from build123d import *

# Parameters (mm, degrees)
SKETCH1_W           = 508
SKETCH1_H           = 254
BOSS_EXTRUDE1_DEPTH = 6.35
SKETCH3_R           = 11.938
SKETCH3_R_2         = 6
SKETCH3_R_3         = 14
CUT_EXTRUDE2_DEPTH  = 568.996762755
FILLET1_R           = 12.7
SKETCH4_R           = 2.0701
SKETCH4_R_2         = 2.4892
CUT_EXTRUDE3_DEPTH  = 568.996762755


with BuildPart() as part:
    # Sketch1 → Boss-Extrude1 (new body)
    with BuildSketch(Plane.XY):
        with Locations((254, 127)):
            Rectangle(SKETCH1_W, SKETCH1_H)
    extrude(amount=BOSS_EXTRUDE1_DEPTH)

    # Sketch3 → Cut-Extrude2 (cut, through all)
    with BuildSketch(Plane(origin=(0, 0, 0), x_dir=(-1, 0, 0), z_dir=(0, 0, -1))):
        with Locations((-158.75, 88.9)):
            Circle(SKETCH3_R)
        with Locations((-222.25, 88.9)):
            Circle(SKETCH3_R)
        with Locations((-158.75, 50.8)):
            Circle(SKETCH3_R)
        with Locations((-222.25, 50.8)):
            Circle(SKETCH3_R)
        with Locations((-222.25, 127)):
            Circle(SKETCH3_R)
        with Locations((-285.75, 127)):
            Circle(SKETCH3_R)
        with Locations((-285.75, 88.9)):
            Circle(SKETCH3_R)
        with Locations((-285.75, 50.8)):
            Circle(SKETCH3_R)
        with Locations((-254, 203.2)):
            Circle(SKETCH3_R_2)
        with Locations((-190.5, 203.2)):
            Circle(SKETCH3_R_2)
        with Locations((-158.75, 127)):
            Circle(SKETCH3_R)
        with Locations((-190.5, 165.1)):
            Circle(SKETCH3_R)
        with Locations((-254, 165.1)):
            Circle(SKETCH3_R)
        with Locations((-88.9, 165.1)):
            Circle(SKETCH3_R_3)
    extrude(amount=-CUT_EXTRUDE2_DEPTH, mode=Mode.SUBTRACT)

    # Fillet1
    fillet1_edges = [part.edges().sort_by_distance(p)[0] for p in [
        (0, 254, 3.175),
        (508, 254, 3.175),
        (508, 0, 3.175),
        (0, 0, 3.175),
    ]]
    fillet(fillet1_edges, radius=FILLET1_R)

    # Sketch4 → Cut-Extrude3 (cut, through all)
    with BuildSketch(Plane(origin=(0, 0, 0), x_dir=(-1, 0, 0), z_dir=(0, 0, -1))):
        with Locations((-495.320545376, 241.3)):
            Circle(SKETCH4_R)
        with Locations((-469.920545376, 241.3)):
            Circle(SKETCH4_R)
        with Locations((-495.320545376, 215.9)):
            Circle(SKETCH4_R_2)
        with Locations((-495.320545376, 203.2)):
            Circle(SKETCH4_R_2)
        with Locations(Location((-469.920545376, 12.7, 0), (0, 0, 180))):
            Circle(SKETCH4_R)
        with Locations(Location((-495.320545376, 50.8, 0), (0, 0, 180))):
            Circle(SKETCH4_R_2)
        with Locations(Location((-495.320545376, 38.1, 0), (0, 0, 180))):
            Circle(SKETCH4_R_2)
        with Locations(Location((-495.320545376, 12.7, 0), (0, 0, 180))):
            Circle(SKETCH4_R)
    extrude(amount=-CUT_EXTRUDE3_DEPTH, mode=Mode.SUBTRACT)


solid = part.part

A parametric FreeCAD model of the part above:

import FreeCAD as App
import Part
import Sketcher

V = App.Vector
Q = App.Units.Quantity


def edges_at(feature, points):
    """Names of the edges that pass closest to the given points."""
    edges = feature.Shape.Edges
    near = lambda p: min(range(len(edges)), key=lambda i: edges[i].distToShape(Part.Vertex(*p))[0])
    return sorted({f"Edge{near(p) + 1}" for p in points})


def add_polygon(sketch, points):
    """Adds a closed chain of lines whose ends are joined by coincident constraints."""
    first, n = sketch.GeometryCount, len(points)
    for a, b in zip(points, points[1:] + points[:1]):
        sketch.addGeometry(Part.LineSegment(App.Vector(*a, 0), App.Vector(*b, 0)), False)
    for i in range(n):
        sketch.addConstraint(Sketcher.Constraint("Coincident", first + i, 2, first + (i + 1) % n, 1))

doc = App.newDocument("Part")
body = doc.addObject("PartDesign::Body", "Body")

sketch1 = body.newObject("Sketcher::SketchObject", "Sketch")
sketch1.AttachmentSupport = (doc.getObject("XY_Plane"), [""])
sketch1.MapMode = "FlatFace"
add_polygon(sketch1, [(0, 254), (0, 0), (508, 0), (508, 254)])
sketch1.addConstraint(Sketcher.Constraint("Vertical", 0))
sketch1.addConstraint(Sketcher.Constraint("Horizontal", 1))
sketch1.addConstraint(Sketcher.Constraint("Vertical", 2))
sketch1.addConstraint(Sketcher.Constraint("Horizontal", 3))
sketch1.addConstraint(Sketcher.Constraint("Coincident", 0, 2, -1, 1))
sketch1.addConstraint(Sketcher.Constraint("DistanceX", 1, 1, 1, 2, Q("20 in")))
sketch1.addConstraint(Sketcher.Constraint("DistanceY", 0, 2, 0, 1, Q("10 in")))
pad1 = body.newObject("PartDesign::Pad", "Pad")
pad1.Profile = sketch1
pad1.Length = Q("0.25 in")

sketch2 = body.newObject("Sketcher::SketchObject", "Sketch001")
sketch2.AttachmentSupport = (doc.getObject("XY_Plane"), [""])
sketch2.MapMode = "FlatFace"
sketch2.addGeometry(Part.Circle(V(159, 89, 0), V(0, 0, 1), 12), False)
sketch2.addGeometry(Part.Circle(V(222, 89, 0), V(0, 0, 1), 12), False)
sketch2.addGeometry(Part.Circle(V(159, 51, 0), V(0, 0, 1), 12), False)
sketch2.addGeometry(Part.Circle(V(222, 51, 0), V(0, 0, 1), 12), False)
sketch2.addGeometry(Part.Circle(V(222, 127, 0), V(0, 0, 1), 12), False)
sketch2.addGeometry(Part.Circle(V(286, 127, 0), V(0, 0, 1), 12), False)
sketch2.addGeometry(Part.Circle(V(286, 89, 0), V(0, 0, 1), 12), False)
sketch2.addGeometry(Part.Circle(V(286, 51, 0), V(0, 0, 1), 12), False)
sketch2.addGeometry(Part.Circle(V(254, 203, 0), V(0, 0, 1), 6), False)
sketch2.addGeometry(Part.Circle(V(190, 203, 0), V(0, 0, 1), 6), False)
sketch2.addGeometry(Part.Circle(V(159, 127, 0), V(0, 0, 1), 12), False)
sketch2.addGeometry(Part.Circle(V(190, 165, 0), V(0, 0, 1), 12), False)
sketch2.addGeometry(Part.Circle(V(254, 165, 0), V(0, 0, 1), 12), False)
sketch2.addGeometry(Part.Circle(V(89, 165, 0), V(0, 0, 1), 14), False)
sketch2.addConstraint(Sketcher.Constraint("Equal", 0, 1))
sketch2.addConstraint(Sketcher.Constraint("Equal", 1, 2))
sketch2.addConstraint(Sketcher.Constraint("Equal", 2, 3))
sketch2.addConstraint(Sketcher.Constraint("Equal", 3, 4))
sketch2.addConstraint(Sketcher.Constraint("Equal", 4, 5))
sketch2.addConstraint(Sketcher.Constraint("Equal", 5, 6))
sketch2.addConstraint(Sketcher.Constraint("Equal", 6, 7))
sketch2.addConstraint(Sketcher.Constraint("Equal", 8, 9))
sketch2.addConstraint(Sketcher.Constraint("Equal", 7, 10))
sketch2.addConstraint(Sketcher.Constraint("Equal", 10, 11))
sketch2.addConstraint(Sketcher.Constraint("Equal", 11, 12))
sketch2.addConstraint(Sketcher.Constraint("Horizontal", 0, 3, 1, 3))
sketch2.addConstraint(Sketcher.Constraint("Horizontal", 2, 3, 3, 3))
sketch2.addConstraint(Sketcher.Constraint("Horizontal", 4, 3, 5, 3))
sketch2.addConstraint(Sketcher.Constraint("Horizontal", 1, 3, 6, 3))
sketch2.addConstraint(Sketcher.Constraint("Horizontal", 3, 3, 7, 3))
sketch2.addConstraint(Sketcher.Constraint("Horizontal", 8, 3, 9, 3))
sketch2.addConstraint(Sketcher.Constraint("Horizontal", 5, 3, 10, 3))
sketch2.addConstraint(Sketcher.Constraint("Horizontal", 11, 3, 12, 3))
sketch2.addConstraint(Sketcher.Constraint("Horizontal", 12, 3, 13, 3))
sketch2.addConstraint(Sketcher.Constraint("Vertical", 0, 3, 2, 3))
sketch2.addConstraint(Sketcher.Constraint("Vertical", 1, 3, 3, 3))
sketch2.addConstraint(Sketcher.Constraint("Vertical", 3, 3, 4, 3))
sketch2.addConstraint(Sketcher.Constraint("Vertical", 5, 3, 6, 3))
sketch2.addConstraint(Sketcher.Constraint("Vertical", 6, 3, 7, 3))
sketch2.addConstraint(Sketcher.Constraint("Vertical", 2, 3, 10, 3))
sketch2.addConstraint(Sketcher.Constraint("Vertical", 9, 3, 11, 3))
sketch2.addConstraint(Sketcher.Constraint("Vertical", 8, 3, 12, 3))
sketch2.addConstraint(Sketcher.Constraint("Diameter", 0, Q("0.94 in")))
sketch2.addConstraint(Sketcher.Constraint("DistanceY", -1, 1, 2, 3, Q("2 in")))
sketch2.addConstraint(Sketcher.Constraint("DistanceY", -1, 1, 4, 3, Q("5 in")))
sketch2.addConstraint(Sketcher.Constraint("DistanceX", -1, 1, 8, 3, Q("10 in")))
sketch2.addConstraint(Sketcher.Constraint("DistanceY", -1, 1, 8, 3, Q("8 in")))
sketch2.addConstraint(Sketcher.Constraint("DistanceX", 0, 3, 5, 3, Q("5 in")))
sketch2.addConstraint(Sketcher.Constraint("DistanceY", 0, 3, 11, 3, Q("3 in")))
sketch2.addConstraint(Sketcher.Constraint("DistanceX", 13, 3, 11, 3, Q("4 in")))
sketch2.addConstraint(Sketcher.Constraint("DistanceY", -1, 1, 0, 3, Q("3.5 in")))
sketch2.addConstraint(Sketcher.Constraint("DistanceX", -1, 1, 9, 3, Q("7.5 in")))
sketch2.addConstraint(Sketcher.Constraint("DistanceX", 0, 3, 1, 3, Q("2.5 in")))
sketch2.addConstraint(Sketcher.Constraint("Diameter", 8, 12.0))
sketch2.addConstraint(Sketcher.Constraint("Diameter", 13, 28.0))
sketch2.addConstraint(Sketcher.Constraint("DistanceX", -1, 1, 0, 3, Q("6.25 in")))
pocket1 = body.newObject("PartDesign::Pocket", "Pocket")
pocket1.Profile = sketch2
pocket1.Type = "ThroughAll"
pocket1.Reversed = True
doc.recompute()

fillet = body.newObject("PartDesign::Fillet", "Fillet")
fillet.Base = (pocket1, edges_at(pocket1, [
    (0, 254, 3.175),
    (508, 254, 3.175),
    (508, 0, 3.175),
    (0, 0, 3.175),
]))
fillet.Radius = Q("0.5 in")

sketch3 = body.newObject("Sketcher::SketchObject", "Sketch002")
sketch3.AttachmentSupport = (doc.getObject("XY_Plane"), [""])
sketch3.MapMode = "FlatFace"
sketch3.addGeometry(Part.Circle(V(495.3, 241.3, 0), V(0, 0, 1), 2.1), False)
sketch3.addGeometry(Part.Circle(V(469.9, 241.3, 0), V(0, 0, 1), 2.1), False)
sketch3.addGeometry(Part.Circle(V(495.3, 215.9, 0), V(0, 0, 1), 2.5), False)
sketch3.addGeometry(Part.Circle(V(495.3, 203.2, 0), V(0, 0, 1), 2.5), False)
sketch3.addGeometry(Part.Circle(V(469.9, 12.7, 0), V(0, 0, 1), 2.1), False)
sketch3.addGeometry(Part.Circle(V(495.3, 50.8, 0), V(0, 0, 1), 2.5), False)
sketch3.addGeometry(Part.Circle(V(495.3, 38.1, 0), V(0, 0, 1), 2.5), False)
sketch3.addGeometry(Part.Circle(V(495.3, 12.7, 0), V(0, 0, 1), 2.1), False)
sketch3.addConstraint(Sketcher.Constraint("Equal", 0, 1))
sketch3.addConstraint(Sketcher.Constraint("Equal", 2, 3))
sketch3.addConstraint(Sketcher.Constraint("Equal", 1, 4))
sketch3.addConstraint(Sketcher.Constraint("Equal", 3, 5))
sketch3.addConstraint(Sketcher.Constraint("Equal", 5, 6))
sketch3.addConstraint(Sketcher.Constraint("Equal", 4, 7))
sketch3.addConstraint(Sketcher.Constraint("Horizontal", 0, 3, 1, 3))
sketch3.addConstraint(Sketcher.Constraint("Horizontal", 4, 3, 7, 3))
sketch3.addConstraint(Sketcher.Constraint("Vertical", 0, 3, 2, 3))
sketch3.addConstraint(Sketcher.Constraint("Vertical", 2, 3, 3, 3))
sketch3.addConstraint(Sketcher.Constraint("Vertical", 1, 3, 4, 3))
sketch3.addConstraint(Sketcher.Constraint("Vertical", 3, 3, 5, 3))
sketch3.addConstraint(Sketcher.Constraint("Vertical", 5, 3, 6, 3))
sketch3.addConstraint(Sketcher.Constraint("Vertical", 6, 3, 7, 3))
sketch3.addConstraint(Sketcher.Constraint("Diameter", 0, Q("0.163 in")))
sketch3.addConstraint(Sketcher.Constraint("Diameter", 2, Q("0.196 in")))
sketch3.addConstraint(Sketcher.Constraint("DistanceY", -1, 1, 3, 3, Q("8 in")))
sketch3.addConstraint(Sketcher.Constraint("DistanceY", -1, 1, 5, 3, Q("2 in")))
sketch3.addConstraint(Sketcher.Constraint("DistanceX", 1, 3, 0, 3, Q("1 in")))
sketch3.addConstraint(Sketcher.Constraint("DistanceY", 2, 3, 0, 3, Q("1 in")))
sketch3.addConstraint(Sketcher.Constraint("DistanceY", 4, 3, 2, 3, Q("8 in")))
sketch3.addConstraint(Sketcher.Constraint("DistanceY", 4, 3, 6, 3, Q("1 in")))
sketch3.addConstraint(Sketcher.Constraint("DistanceY", -1, 1, 0, 3, Q("9.5 in")))
sketch3.addConstraint(Sketcher.Constraint("DistanceX", -1, 1, 0, 3, 495.320545))
pocket2 = body.newObject("PartDesign::Pocket", "Pocket001")
pocket2.Profile = sketch3
pocket2.Type = "ThroughAll"
pocket2.Reversed = True

doc.recompute()
